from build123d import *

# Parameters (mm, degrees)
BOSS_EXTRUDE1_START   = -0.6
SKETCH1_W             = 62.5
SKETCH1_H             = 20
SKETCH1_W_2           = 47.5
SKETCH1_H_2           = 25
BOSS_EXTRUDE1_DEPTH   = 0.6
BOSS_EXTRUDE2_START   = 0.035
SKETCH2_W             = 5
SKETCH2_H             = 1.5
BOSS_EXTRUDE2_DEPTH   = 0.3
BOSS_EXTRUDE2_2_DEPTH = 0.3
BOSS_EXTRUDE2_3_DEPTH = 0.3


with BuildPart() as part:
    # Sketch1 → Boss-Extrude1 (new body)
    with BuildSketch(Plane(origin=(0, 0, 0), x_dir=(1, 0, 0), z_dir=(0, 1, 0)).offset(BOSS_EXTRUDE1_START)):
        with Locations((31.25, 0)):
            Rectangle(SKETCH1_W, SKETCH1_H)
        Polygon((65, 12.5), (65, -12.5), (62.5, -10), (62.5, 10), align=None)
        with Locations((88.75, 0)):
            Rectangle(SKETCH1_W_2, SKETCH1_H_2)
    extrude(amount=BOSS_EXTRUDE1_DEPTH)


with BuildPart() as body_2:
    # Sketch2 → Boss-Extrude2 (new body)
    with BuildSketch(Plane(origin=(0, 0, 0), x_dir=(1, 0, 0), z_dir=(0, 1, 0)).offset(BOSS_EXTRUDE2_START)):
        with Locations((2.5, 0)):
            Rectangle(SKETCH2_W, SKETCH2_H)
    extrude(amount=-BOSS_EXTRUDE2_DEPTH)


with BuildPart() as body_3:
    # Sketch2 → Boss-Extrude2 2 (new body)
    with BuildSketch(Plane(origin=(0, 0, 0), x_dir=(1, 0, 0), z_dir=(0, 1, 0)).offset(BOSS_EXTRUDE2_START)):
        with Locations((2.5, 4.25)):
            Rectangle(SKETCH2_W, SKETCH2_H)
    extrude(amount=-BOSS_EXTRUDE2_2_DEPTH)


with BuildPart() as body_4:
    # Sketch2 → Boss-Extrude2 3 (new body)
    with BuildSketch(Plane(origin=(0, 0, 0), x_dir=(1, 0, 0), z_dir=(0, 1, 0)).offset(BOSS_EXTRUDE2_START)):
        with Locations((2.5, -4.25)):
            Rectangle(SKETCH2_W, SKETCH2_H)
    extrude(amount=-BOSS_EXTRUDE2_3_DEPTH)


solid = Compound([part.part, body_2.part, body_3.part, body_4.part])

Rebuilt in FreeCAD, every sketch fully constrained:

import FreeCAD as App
import Part
import Sketcher
from FreeCAD import Vector
Q = App.Units.Quantity


def add_polygon(sketch, points):
    """Adds a closed chain of lines whose ends are joined by coincident constraints."""
    first, n = sketch.GeometryCount, len(points)
    for a, b in zip(points, points[1:] + points[:1]):
        sketch.addGeometry(Part.LineSegment(App.Vector(*a, 0), App.Vector(*b, 0)), False)
    for i in range(n):
        sketch.addConstraint(Sketcher.Constraint("Coincident", first + i, 2, first + (i + 1) % n, 1))

doc = App.newDocument("Part")
body = doc.addObject("PartDesign::Body", "Body")

sketch1 = doc.addObject("Sketcher::SketchObject", "Sketch")
body.addObject(sketch1)
sketch1.AttachmentSupport = (doc.XZ_Plane, [""])
sketch1.MapMode = "FlatFace"
sketch1.AttachmentOffset = App.Placement(Vector(0, 0, 0.6), App.Rotation())
add_polygon(sketch1, [(0, -10), (0, 10), (62.5, 10), (65, 12.5), (112.5, 12.5), (112.5, -12.5), (65, -12.5), (62.5, -10)])
sketch1.addConstraint(Sketcher.Constraint("Vertical", 0))
sketch1.addConstraint(Sketcher.Constraint("Horizontal", 1))
sketch1.addConstraint(Sketcher.Constraint("Horizontal", 3))
sketch1.addConstraint(Sketcher.Constraint("Vertical", 4))
sketch1.addConstraint(Sketcher.Constraint("Horizontal", 5))
sketch1.addConstraint(Sketcher.Constraint("Horizontal", 7))
sketch1.addConstraint(Sketcher.Constraint("Symmetric", 0, 2, 7, 2, -1, 1))
sketch1.addConstraint(Sketcher.Constraint("Symmetric", 2, 2, 5, 2, -1))
sketch1.addConstraint(Sketcher.Constraint("Perpendicular", 2, 6))
sketch1.addConstraint(Sketcher.Constraint("Vertical", 1, 2, 6, 2))
sketch1.addConstraint(Sketcher.Constraint("DistanceY", 0, 1, 0, 2, Q("20 mm")))
sketch1.addConstraint(Sketcher.Constraint("DistanceY", 4, 2, 4, 1, Q("25 mm")))
sketch1.addConstraint(Sketcher.Constraint("DistanceX", 1, 1, 1, 2, Q("62.5 mm")))
sketch1.addConstraint(Sketcher.Constraint("DistanceX", 3, 1, 3, 2, Q("47.5 mm")))
pad1 = doc.addObject("PartDesign::Pad", "Pad")
body.addObject(pad1)
pad1.Profile = sketch1
pad1.Length = 0.6
pad1.Reversed = True
body2 = doc.addObject("PartDesign::Body", "Body001")

sketch2 = doc.addObject("Sketcher::SketchObject", "Sketch001")
body2.addObject(sketch2)
sketch2.AttachmentSupport = (doc.getObject("XZ_Plane001"), [""])
sketch2.MapMode = "FlatFace"
sketch2.AttachmentOffset = App.Placement(Vector(0, 0, -0.035), App.Rotation())
add_polygon(sketch2, [(0, -0.8), (0, 0.8), (5, 0.8), (5, -0.8)])
sketch2.addConstraint(Sketcher.Constraint("Vertical", 0))
sketch2.addConstraint(Sketcher.Constraint("Horizontal", 1))
sketch2.addConstraint(Sketcher.Constraint("Vertical", 2))
sketch2.addConstraint(Sketcher.Constraint("Horizontal", 3))
sketch2.addConstraint(Sketcher.Constraint("Symmetric", 0, 2, 3, 2, -1, 1))
sketch2.addConstraint(Sketcher.Constraint("DistanceX", 1, 1, 1, 2, Q("5 mm")))
sketch2.addConstraint(Sketcher.Constraint("DistanceY", 0, 1, 0, 2, Q("1.5 mm")))
pad2 = doc.addObject("PartDesign::Pad", "Pad001")
body2.addObject(pad2)
pad2.Profile = sketch2
pad2.Length = 0.3
body3 = doc.addObject("PartDesign::Body", "Body002")

sketch3 = doc.addObject("Sketcher::SketchObject", "Sketch002")
body3.addObject(sketch3)
sketch3.AttachmentSupport = (doc.getObject("XZ_Plane002"), [""])
sketch3.MapMode = "FlatFace"
sketch3.AttachmentOffset = App.Placement(Vector(0, 0, -0.035), App.Rotation())
add_polygon(sketch3, [(0, -5), (0, -3.5), (5, -3.5), (5, -5)])
sketch3.addConstraint(Sketcher.Constraint("Vertical", 0))
sketch3.addConstraint(Sketcher.Constraint("Horizontal", 1))
sketch3.addConstraint(Sketcher.Constraint("Vertical", 2))
sketch3.addConstraint(Sketcher.Constraint("Horizontal", 3))
sketch3.addConstraint(Sketcher.Constraint("PointOnObject", 0, 2, -2))
sketch3.addConstraint(Sketcher.Constraint("DistanceX", 1, 1, 1, 2, Q("5 mm")))
sketch3.addConstraint(Sketcher.Constraint("DistanceY", 0, 1, 0, 2, Q("1.5 mm")))
sketch3.addConstraint(Sketcher.Constraint("DistanceY", 2, 2, -1, 1, Q("5 mm")))
pad3 = doc.addObject("PartDesign::Pad", "Pad002")
body3.addObject(pad3)
pad3.Profile = sketch3
pad3.Length = 0.3
body4 = doc.addObject("PartDesign::Body", "Body003")

sketch4 = doc.addObject("Sketcher::SketchObject", "Sketch003")
body4.addObject(sketch4)
sketch4.AttachmentSupport = (doc.getObject("XZ_Plane003"), [""])
sketch4.MapMode = "FlatFace"
sketch4.AttachmentOffset = App.Placement(Vector(0, 0, -0.035), App.Rotation())
add_polygon(sketch4, [(0, 3.5), (0, 5), (5, 5), (5, 3.5)])
sketch4.addConstraint(Sketcher.Constraint("Vertical", 0))
sketch4.addConstraint(Sketcher.Constraint("Horizontal", 1))
sketch4.addConstraint(Sketcher.Constraint("Vertical", 2))
sketch4.addConstraint(Sketcher.Constraint("Horizontal", 3))
sketch4.addConstraint(Sketcher.Constraint("PointOnObject", 0, 2, -2))
sketch4.addConstraint(Sketcher.Constraint("DistanceX", 1, 1, 1, 2, Q("5 mm")))
sketch4.addConstraint(Sketcher.Constraint("DistanceY", 0, 1, 0, 2, Q("1.5 mm")))
sketch4.addConstraint(Sketcher.Constraint("DistanceY", -1, 1, 0, 2, Q("5 mm")))
pad4 = doc.addObject("PartDesign::Pad", "Pad003")
body4.addObject(pad4)
pad4.Profile = sketch4
pad4.Length = 0.3

doc.recompute()
